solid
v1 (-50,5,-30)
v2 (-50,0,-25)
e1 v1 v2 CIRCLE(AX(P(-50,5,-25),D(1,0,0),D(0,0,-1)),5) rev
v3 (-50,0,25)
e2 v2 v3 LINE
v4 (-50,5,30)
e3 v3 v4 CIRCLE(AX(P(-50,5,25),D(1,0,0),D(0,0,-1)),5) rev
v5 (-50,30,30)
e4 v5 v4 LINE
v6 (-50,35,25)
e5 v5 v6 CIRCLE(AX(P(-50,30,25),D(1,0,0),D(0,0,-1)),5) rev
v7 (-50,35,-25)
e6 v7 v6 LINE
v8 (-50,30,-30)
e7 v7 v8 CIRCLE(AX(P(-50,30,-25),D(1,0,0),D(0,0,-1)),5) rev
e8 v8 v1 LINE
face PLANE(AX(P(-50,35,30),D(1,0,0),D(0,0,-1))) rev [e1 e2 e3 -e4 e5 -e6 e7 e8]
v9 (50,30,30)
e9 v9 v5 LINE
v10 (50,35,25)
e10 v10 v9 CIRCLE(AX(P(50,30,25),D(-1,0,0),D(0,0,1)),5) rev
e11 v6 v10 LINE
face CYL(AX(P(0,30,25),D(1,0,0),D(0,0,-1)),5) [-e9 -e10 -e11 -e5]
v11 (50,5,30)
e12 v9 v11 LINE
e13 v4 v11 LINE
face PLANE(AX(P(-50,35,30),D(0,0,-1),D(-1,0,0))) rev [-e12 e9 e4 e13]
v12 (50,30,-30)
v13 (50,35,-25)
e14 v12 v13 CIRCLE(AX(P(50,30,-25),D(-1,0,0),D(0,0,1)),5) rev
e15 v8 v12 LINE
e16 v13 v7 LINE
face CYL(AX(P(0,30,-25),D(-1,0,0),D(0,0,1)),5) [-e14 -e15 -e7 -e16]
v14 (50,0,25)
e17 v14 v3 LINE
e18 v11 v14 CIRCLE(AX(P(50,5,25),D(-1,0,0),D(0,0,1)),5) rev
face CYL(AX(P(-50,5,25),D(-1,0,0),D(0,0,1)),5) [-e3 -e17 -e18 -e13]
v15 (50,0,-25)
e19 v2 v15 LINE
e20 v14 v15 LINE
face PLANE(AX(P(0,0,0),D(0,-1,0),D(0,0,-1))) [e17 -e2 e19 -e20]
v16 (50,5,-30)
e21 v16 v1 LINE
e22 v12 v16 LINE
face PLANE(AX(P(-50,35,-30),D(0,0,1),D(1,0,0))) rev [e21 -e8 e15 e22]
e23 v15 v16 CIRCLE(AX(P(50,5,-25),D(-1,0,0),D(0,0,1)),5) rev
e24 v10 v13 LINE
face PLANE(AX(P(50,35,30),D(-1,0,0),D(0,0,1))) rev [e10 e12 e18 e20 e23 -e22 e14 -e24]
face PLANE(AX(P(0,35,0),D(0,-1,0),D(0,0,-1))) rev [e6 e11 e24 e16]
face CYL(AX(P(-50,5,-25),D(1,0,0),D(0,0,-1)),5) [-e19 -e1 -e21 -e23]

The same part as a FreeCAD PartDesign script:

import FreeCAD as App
import Part
import Sketcher
Q = App.Units.Quantity


def edges_at(feature, points):
    """Names of the edges that pass closest to the given points."""
    edges = feature.Shape.Edges
    near = lambda p: min(range(len(edges)), key=lambda i: edges[i].distToShape(Part.Vertex(*p))[0])
    return sorted({f"Edge{near(p) + 1}" for p in points})


def add_polygon(sketch, points):
    """Adds a closed chain of lines whose ends are joined by coincident constraints."""
    first, n = sketch.GeometryCount, len(points)
    for a, b in zip(points, points[1:] + points[:1]):
        sketch.addGeometry(Part.LineSegment(App.Vector(*a, 0), App.Vector(*b, 0)), False)
    for i in range(n):
        sketch.addConstraint(Sketcher.Constraint("Coincident", first + i, 2, first + (i + 1) % n, 1))

doc = App.newDocument("Part")
body = doc.addObject("PartDesign::Body", "Body")

sketch1 = doc.addObject("Sketcher::SketchObject", "Sketch")
body.addObject(sketch1)
sketch1.AttachmentSupport = (doc.XZ_Plane, [""])
sketch1.MapMode = "FlatFace"
add_polygon(sketch1, [(-50, -30), (-50, 30), (50, 30), (50, -30)])
sketch1.addConstraint(Sketcher.Constraint("Vertical", 0))
sketch1.addConstraint(Sketcher.Constraint("Horizontal", 1))
sketch1.addConstraint(Sketcher.Constraint("Vertical", 2))
sketch1.addConstraint(Sketcher.Constraint("Horizontal", 3))
sketch1.addConstraint(Sketcher.Constraint("Symmetric", 0, 2, 2, 2, -1, 1))
sketch1.addConstraint(Sketcher.Constraint("DistanceX", 1, 1, 1, 2, Q("100 mm")))
sketch1.addConstraint(Sketcher.Constraint("DistanceY", 0, 1, 0, 2, Q("60 mm")))
pad1 = doc.addObject("PartDesign::Pad", "Pad")
body.addObject(pad1)
pad1.Profile = sketch1
pad1.Length = 35
pad1.Reversed = True
doc.recompute()

fillet = doc.addObject("PartDesign::Fillet", "Fillet")
body.addObject(fillet)
fillet.Base = (pad1, edges_at(pad1, [(0, 35, 30)]))
fillet.Radius = 5
doc.recompute()

fillet2 = doc.addObject("PartDesign::Fillet", "Fillet001")
body.addObject(fillet2)
fillet2.Base = (fillet, edges_at(fillet, [(0, 35, -30)]))
fillet2.Radius = 5
doc.recompute()

fillet3 = doc.addObject("PartDesign::Fillet", "Fillet002")
body.addObject(fillet3)
fillet3.Base = (fillet2, edges_at(fillet2, [(0, 0, 30)]))
fillet3.Radius = 5
doc.recompute()

fillet4 = doc.addObject("PartDesign::Fillet", "Fillet003")
body.addObject(fillet4)
fillet4.Base = (fillet3, edges_at(fillet3, [(0, 0, -30)]))
fillet4.Radius = 5

doc.recompute()
